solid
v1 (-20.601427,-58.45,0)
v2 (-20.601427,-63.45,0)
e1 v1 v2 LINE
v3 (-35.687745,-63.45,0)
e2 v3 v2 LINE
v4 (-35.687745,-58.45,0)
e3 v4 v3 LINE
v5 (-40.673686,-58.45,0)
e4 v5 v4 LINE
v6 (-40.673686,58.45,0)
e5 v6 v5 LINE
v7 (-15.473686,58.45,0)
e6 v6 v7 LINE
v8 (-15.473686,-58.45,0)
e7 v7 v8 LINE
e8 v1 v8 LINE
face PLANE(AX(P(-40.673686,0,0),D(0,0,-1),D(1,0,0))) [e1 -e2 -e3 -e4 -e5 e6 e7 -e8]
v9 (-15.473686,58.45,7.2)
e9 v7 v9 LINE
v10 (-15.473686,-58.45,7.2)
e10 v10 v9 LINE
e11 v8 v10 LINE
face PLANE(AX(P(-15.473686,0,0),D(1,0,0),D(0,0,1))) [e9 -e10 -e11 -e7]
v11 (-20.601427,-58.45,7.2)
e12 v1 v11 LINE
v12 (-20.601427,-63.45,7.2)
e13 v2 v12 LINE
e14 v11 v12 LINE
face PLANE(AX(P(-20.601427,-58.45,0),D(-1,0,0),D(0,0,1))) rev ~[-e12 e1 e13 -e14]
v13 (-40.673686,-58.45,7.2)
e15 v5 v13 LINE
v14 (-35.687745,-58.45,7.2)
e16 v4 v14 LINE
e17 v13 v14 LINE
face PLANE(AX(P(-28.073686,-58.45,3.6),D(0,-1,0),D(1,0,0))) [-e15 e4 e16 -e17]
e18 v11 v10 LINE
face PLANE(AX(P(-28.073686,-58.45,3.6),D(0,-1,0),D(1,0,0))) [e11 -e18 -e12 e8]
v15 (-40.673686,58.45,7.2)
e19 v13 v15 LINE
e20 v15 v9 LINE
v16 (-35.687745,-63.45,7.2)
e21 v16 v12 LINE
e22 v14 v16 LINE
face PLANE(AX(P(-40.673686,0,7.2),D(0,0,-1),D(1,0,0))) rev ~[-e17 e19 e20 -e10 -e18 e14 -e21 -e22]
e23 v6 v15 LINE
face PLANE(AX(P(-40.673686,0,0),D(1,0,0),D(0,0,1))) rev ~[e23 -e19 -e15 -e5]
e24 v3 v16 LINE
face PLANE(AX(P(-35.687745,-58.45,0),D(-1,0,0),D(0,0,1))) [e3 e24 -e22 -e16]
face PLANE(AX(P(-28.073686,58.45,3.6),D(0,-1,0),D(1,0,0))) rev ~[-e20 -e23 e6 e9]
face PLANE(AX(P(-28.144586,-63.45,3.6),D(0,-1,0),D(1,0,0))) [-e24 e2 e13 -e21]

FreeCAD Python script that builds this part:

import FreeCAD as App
import Part
import Sketcher
from FreeCAD import Vector

doc = App.newDocument("Part")
body = doc.addObject("PartDesign::Body", "Body")

sketch1 = body.newObject("Sketcher::SketchObject", "Sketch")
sketch1.AttachmentSupport = (doc.getObject("XZ_Plane"), [""])
sketch1.MapMode = "FlatFace"
sketch1.addGeometry([
    Part.LineSegment(Vector(-41, 7, 0), Vector(-41, 0, 0)),
    Part.LineSegment(Vector(-41, 0, 0), Vector(-15, 0, 0)),
    Part.LineSegment(Vector(-15, 0, 0), Vector(-15, 7, 0)),
    Part.LineSegment(Vector(-15, 7, 0), Vector(-41, 7, 0)),
], False)
sketch1.addConstraint([
    Sketcher.Constraint("Coincident", 0, 2, 1, 1),
    Sketcher.Constraint("Coincident", 1, 2, 2, 1),
    Sketcher.Constraint("Coincident", 2, 2, 3, 1),
    Sketcher.Constraint("Coincident", 3, 2, 0, 1),
    Sketcher.Constraint("Vertical", 0),
    Sketcher.Constraint("Horizontal", 1),
    Sketcher.Constraint("Vertical", 2),
    Sketcher.Constraint("Horizontal", 3),
    Sketcher.Constraint("PointOnObject", 0, 2, -1),
    Sketcher.Constraint("DistanceX", 1, 1, 1, 2, 25.2),
    Sketcher.Constraint("DistanceY", 0, 2, 0, 1, 7.2),
    Sketcher.Constraint("DistanceX", 0, 2, -1, 1, 40.673686),
])
pad1 = body.newObject("PartDesign::Pad", "Pad")
pad1.Profile = sketch1
pad1.Length = 116.9
pad1.Midplane = True

sketch2 = body.newObject("Sketcher::SketchObject", "Sketch001")
sketch2.AttachmentSupport = (doc.getObject("XZ_Plane"), [""])
sketch2.MapMode = "FlatFace"
sketch2.AttachmentOffset = App.Placement(Vector(0, 0, 58.45), App.Rotation())
sketch2.addGeometry([
    Part.LineSegment(Vector(-36, 7, 0), Vector(-36, 0, 0)),
    Part.LineSegment(Vector(-36, 0, 0), Vector(-21, 0, 0)),
    Part.LineSegment(Vector(-21, 0, 0), Vector(-21, 7, 0)),
    Part.LineSegment(Vector(-21, 7, 0), Vector(-36, 7, 0)),
], False)
sketch2.addConstraint([
    Sketcher.Constraint("Coincident", 0, 2, 1, 1),
    Sketcher.Constraint("Coincident", 1, 2, 2, 1),
    Sketcher.Constraint("Coincident", 2, 2, 3, 1),
    Sketcher.Constraint("Coincident", 3, 2, 0, 1),
    Sketcher.Constraint("Vertical", 0),
    Sketcher.Constraint("Horizontal", 1),
    Sketcher.Constraint("Vertical", 2),
    Sketcher.Constraint("Horizontal", 3),
    Sketcher.Constraint("PointOnObject", 0, 2, -1),
    Sketcher.Constraint("DistanceY", 0, 2, 0, 1, 7.2),
    Sketcher.Constraint("DistanceX", 1, 1, 1, 2, 15.086318),
    Sketcher.Constraint("DistanceX", 0, 2, -1, 1, 35.687745),
])
pad2 = body.newObject("PartDesign::Pad", "Pad001")
pad2.Profile = sketch2
pad2.Length = 5

doc.recompute()
